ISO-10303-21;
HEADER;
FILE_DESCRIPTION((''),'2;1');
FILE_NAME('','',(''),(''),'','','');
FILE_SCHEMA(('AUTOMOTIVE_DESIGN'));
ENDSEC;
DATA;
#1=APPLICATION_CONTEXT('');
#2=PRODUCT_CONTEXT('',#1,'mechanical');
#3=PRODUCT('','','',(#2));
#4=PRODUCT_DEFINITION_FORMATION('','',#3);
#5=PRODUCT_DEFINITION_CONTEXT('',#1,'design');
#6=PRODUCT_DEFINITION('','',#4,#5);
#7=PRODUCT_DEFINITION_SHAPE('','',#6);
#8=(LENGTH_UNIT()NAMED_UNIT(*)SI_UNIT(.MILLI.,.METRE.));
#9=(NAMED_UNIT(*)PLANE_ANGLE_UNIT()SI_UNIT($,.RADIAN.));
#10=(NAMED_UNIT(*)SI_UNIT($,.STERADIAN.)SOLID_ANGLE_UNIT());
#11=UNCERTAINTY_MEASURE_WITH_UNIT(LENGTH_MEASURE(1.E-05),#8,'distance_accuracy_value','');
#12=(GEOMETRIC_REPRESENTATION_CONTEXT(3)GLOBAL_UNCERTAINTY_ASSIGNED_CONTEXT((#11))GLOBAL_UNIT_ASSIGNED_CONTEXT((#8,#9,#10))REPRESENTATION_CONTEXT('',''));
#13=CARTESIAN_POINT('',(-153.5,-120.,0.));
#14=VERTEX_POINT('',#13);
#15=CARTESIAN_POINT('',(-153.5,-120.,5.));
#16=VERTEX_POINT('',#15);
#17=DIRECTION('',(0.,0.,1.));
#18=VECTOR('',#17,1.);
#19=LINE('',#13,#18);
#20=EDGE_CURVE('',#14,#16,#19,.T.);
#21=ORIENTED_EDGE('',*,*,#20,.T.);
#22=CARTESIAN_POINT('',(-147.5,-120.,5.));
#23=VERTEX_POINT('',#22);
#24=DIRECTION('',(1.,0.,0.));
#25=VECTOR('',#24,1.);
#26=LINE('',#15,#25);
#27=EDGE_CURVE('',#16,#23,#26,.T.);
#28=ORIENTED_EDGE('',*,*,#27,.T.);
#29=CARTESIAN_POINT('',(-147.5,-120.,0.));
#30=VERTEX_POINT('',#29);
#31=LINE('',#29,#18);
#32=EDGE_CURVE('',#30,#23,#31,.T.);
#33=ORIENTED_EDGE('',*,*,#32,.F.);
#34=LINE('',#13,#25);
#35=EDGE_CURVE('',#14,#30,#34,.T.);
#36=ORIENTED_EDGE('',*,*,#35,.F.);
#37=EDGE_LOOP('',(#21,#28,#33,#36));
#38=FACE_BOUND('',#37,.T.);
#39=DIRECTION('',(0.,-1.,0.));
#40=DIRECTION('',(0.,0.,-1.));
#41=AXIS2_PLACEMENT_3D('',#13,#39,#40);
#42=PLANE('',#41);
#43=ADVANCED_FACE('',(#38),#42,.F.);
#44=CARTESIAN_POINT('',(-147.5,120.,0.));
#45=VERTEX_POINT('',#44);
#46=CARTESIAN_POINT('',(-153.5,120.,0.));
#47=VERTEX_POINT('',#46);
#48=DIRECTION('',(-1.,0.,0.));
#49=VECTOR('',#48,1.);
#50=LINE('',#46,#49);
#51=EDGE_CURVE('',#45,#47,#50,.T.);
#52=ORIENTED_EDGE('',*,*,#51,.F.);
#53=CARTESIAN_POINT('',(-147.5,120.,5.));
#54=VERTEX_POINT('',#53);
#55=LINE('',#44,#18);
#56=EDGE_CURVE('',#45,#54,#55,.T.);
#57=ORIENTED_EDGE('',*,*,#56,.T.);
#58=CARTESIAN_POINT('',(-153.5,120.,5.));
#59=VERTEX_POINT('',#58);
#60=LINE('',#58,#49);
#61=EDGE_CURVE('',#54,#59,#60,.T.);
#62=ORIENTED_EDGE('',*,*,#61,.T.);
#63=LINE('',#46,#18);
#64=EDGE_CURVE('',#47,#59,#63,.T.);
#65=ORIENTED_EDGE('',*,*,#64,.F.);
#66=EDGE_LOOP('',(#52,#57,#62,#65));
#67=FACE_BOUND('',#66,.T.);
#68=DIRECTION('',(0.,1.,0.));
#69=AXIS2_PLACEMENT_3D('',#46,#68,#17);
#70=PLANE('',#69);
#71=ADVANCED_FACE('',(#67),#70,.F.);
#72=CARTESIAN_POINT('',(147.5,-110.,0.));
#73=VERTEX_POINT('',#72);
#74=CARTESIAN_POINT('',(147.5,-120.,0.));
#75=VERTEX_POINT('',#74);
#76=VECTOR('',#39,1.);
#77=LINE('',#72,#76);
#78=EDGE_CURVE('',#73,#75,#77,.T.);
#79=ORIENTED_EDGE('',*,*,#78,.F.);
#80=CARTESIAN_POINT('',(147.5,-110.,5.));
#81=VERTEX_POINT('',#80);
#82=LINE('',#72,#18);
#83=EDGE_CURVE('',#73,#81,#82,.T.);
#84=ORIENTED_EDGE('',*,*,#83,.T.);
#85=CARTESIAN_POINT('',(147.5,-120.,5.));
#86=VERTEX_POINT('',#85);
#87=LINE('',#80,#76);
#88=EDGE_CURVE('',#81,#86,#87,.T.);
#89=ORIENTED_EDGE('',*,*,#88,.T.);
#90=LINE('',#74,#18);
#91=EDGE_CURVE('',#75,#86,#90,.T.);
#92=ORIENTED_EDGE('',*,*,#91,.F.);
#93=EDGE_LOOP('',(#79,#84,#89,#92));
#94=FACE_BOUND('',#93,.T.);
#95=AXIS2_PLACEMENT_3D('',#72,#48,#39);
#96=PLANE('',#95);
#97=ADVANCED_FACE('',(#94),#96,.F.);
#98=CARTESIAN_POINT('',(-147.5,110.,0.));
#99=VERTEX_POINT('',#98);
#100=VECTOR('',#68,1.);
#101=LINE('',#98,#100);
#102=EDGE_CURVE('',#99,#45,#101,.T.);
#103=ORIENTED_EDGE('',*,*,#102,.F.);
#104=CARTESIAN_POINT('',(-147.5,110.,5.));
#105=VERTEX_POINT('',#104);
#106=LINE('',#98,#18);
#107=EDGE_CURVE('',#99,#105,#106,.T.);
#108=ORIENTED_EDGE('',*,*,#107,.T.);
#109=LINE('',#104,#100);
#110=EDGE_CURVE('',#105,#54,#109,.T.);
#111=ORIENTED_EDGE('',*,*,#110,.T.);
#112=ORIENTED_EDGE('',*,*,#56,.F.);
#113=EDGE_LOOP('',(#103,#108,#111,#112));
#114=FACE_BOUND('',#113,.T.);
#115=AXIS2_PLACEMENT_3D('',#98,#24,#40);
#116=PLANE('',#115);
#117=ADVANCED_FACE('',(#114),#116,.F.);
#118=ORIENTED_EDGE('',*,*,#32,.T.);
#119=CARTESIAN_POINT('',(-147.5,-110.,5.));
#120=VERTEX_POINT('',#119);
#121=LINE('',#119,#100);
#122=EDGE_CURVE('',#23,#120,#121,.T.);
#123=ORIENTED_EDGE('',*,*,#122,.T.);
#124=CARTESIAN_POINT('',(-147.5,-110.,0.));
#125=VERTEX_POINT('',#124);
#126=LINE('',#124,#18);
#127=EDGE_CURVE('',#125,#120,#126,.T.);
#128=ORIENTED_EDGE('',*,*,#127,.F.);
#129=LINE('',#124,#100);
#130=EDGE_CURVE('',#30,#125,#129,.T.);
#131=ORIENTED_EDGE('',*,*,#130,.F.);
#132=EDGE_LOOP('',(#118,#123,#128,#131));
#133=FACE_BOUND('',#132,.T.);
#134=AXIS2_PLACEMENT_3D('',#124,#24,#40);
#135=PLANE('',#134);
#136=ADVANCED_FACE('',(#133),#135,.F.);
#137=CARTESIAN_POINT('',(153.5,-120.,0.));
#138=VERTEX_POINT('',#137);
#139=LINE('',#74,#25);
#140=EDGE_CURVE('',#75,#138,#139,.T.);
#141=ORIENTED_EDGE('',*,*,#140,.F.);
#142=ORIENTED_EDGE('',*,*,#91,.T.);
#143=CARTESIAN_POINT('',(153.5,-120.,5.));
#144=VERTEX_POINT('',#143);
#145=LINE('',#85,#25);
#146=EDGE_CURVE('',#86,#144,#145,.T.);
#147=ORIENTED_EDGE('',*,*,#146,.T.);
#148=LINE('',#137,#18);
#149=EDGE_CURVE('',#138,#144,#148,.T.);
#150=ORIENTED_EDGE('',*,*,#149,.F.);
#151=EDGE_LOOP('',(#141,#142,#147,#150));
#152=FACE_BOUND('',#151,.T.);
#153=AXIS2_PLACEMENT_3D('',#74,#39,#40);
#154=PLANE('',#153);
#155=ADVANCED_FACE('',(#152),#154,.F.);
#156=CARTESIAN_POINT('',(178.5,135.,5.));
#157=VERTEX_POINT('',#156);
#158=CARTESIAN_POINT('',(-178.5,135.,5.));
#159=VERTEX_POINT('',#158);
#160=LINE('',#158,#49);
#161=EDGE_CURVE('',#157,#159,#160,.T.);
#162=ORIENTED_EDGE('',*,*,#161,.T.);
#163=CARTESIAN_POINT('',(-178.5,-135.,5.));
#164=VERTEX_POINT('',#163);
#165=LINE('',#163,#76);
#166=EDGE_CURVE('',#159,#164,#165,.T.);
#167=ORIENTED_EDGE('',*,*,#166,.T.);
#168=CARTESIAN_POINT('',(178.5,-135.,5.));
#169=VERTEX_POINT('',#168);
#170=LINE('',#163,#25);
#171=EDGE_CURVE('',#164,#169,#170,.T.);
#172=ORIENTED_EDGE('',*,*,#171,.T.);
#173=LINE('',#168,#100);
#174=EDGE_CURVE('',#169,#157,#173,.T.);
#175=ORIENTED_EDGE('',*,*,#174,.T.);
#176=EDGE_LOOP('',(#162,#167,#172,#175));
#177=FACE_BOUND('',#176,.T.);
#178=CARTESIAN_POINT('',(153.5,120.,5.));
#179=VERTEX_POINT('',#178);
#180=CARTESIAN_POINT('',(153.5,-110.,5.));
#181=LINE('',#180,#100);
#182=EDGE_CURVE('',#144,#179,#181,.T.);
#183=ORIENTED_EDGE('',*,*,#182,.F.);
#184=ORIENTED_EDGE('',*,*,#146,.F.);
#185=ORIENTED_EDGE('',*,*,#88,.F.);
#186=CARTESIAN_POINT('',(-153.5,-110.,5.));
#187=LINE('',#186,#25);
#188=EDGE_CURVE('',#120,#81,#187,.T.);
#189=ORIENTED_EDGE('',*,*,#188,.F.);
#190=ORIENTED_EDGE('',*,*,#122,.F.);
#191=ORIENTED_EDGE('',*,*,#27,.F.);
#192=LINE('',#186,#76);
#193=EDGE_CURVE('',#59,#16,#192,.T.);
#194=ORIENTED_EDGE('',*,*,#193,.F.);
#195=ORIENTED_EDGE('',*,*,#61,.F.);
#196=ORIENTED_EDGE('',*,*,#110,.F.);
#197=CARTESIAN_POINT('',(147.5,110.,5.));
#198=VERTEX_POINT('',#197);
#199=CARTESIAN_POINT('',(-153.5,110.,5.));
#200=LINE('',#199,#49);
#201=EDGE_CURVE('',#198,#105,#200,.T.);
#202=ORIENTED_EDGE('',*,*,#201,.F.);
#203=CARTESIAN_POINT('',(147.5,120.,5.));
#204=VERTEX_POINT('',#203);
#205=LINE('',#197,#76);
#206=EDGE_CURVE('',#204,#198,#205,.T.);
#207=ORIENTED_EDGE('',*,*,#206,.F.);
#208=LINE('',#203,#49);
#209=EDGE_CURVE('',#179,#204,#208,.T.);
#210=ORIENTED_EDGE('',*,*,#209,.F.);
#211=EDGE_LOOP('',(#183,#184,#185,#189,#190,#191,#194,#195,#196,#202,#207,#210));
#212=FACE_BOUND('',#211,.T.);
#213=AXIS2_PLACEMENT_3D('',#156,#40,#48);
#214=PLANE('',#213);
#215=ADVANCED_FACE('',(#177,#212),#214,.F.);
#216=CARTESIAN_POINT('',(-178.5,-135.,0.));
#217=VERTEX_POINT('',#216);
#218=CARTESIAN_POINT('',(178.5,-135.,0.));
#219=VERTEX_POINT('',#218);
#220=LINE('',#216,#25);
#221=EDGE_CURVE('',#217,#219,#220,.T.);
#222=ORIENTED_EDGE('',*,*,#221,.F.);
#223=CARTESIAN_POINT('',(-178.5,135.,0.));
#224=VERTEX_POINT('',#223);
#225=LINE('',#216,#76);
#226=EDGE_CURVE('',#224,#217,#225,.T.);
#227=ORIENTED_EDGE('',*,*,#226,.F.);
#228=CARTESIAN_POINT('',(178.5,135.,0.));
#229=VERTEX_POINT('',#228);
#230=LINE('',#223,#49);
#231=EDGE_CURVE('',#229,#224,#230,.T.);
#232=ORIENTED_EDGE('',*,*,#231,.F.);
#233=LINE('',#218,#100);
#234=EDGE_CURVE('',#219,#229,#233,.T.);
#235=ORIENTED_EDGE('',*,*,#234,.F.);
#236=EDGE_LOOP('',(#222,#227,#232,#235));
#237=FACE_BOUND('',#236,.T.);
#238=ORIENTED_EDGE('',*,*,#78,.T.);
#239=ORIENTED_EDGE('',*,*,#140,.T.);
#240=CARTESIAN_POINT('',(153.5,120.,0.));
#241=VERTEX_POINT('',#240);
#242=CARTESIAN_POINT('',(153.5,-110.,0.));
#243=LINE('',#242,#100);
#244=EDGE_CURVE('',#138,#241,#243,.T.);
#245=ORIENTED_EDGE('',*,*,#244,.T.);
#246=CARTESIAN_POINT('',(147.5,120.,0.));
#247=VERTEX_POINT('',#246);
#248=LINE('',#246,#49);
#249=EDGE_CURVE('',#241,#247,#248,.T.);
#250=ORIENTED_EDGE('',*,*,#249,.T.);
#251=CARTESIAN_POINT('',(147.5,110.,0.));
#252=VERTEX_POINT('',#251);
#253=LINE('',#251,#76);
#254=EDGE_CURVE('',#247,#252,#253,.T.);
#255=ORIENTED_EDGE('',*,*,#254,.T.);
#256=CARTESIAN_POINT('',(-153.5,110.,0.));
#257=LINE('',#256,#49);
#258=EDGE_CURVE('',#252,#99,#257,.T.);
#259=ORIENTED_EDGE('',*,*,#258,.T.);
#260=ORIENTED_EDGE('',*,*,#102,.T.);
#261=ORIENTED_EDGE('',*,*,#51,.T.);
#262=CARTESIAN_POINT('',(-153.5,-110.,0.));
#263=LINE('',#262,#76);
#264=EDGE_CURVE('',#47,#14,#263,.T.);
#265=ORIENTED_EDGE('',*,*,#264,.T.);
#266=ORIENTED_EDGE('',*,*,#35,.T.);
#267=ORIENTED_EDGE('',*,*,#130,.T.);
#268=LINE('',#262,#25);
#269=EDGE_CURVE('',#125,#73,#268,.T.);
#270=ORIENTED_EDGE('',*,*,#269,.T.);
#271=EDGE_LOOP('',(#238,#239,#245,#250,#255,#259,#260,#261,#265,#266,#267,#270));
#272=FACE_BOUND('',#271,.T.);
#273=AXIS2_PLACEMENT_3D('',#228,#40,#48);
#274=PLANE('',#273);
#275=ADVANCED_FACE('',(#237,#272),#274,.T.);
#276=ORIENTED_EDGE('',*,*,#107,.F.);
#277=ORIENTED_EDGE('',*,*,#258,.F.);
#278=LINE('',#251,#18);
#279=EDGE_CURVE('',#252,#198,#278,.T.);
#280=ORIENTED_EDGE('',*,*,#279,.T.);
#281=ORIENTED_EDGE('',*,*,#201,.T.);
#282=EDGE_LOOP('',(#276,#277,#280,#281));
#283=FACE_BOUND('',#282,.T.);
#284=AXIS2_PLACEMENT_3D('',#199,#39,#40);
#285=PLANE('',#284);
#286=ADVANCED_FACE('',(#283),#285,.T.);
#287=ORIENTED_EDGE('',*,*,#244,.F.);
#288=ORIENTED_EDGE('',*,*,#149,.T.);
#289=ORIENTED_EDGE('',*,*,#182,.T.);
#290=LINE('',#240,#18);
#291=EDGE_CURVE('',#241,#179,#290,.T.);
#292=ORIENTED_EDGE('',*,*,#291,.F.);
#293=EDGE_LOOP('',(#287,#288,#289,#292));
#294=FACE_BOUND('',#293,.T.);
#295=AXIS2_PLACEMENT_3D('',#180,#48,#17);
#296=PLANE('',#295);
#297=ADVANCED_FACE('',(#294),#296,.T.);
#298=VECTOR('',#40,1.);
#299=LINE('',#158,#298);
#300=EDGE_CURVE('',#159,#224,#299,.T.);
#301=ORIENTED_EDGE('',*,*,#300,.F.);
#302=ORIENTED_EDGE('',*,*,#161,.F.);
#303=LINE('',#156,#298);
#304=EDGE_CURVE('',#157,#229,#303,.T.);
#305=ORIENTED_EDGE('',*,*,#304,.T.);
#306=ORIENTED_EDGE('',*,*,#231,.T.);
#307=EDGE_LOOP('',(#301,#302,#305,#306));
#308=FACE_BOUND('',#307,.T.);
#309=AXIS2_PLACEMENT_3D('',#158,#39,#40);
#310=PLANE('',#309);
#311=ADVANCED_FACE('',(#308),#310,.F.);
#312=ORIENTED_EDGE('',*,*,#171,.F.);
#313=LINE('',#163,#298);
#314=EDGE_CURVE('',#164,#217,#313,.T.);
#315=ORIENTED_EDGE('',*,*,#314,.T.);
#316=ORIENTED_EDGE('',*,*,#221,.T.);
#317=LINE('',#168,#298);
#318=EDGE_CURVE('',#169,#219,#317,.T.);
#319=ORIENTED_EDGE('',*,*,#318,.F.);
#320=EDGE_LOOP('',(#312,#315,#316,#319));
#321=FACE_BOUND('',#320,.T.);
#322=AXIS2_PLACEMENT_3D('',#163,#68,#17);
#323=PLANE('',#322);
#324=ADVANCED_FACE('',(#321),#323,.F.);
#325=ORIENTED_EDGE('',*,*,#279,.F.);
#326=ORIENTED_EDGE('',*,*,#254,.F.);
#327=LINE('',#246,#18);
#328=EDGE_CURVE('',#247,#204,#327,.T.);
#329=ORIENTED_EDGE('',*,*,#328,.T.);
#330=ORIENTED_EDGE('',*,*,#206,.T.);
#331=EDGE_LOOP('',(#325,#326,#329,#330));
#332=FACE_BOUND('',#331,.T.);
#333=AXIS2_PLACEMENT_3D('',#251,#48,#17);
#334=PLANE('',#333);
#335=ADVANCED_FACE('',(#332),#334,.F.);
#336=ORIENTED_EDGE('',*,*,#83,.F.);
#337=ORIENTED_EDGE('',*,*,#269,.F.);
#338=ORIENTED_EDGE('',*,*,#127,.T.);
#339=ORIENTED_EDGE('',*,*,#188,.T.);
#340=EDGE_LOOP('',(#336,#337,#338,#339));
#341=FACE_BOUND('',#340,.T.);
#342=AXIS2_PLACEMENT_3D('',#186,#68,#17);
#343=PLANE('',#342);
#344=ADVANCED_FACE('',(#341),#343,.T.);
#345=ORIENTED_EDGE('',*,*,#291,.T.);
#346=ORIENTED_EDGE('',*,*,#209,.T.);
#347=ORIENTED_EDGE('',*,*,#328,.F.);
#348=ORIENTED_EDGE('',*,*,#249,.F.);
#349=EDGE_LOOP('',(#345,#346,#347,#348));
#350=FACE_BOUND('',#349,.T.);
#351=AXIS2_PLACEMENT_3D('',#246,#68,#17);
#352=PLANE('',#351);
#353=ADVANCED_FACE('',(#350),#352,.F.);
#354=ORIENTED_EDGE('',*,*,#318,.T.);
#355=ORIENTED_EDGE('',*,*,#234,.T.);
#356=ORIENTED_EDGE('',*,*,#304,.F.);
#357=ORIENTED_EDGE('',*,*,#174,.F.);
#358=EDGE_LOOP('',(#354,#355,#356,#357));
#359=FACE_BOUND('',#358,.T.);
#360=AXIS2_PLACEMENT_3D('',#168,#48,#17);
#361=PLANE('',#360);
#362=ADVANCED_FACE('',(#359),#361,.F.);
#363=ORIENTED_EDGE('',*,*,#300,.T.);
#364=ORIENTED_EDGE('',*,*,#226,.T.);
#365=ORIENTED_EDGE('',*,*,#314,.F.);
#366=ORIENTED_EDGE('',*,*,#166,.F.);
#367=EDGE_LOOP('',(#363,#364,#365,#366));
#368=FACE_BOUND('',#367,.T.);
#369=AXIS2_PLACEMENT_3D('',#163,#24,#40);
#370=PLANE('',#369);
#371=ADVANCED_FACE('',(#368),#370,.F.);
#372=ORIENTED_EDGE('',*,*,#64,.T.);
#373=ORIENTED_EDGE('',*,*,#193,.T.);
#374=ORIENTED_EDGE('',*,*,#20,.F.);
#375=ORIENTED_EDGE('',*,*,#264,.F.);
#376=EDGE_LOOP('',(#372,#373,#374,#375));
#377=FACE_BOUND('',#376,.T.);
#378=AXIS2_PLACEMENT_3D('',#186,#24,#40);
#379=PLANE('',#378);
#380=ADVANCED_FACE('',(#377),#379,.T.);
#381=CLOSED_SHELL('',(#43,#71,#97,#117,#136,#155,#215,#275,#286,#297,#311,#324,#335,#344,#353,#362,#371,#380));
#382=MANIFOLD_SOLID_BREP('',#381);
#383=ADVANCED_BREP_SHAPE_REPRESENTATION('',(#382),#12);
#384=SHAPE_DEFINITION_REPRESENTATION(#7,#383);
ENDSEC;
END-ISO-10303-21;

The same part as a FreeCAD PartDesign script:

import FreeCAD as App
import Part
import Sketcher

V = App.Vector
Q = App.Units.Quantity

doc = App.newDocument("Part")
params = doc.addObject("Spreadsheet::Sheet", "Params")
for row, (alias, value) in enumerate([
    ("sketch1_width", "357 mm"),
    ("sketch1_width2", "307 mm"),
    ("sketch1_height", "270 mm"),
    ("sketch1_height2", "220 mm"),
    ("pad1_length", "5 mm"),
    ("sketch2_width", "6 mm"),
    ("sketch2_height", "10 mm"),
], start=1):
    params.set(f"A{row}", alias)
    params.set(f"B{row}", "=" + value)
    params.setAlias(f"B{row}", alias)

body = doc.addObject("PartDesign::Body", "Body")

sketch1 = body.newObject("Sketcher::SketchObject", "Sketch")
sketch1.AttachmentSupport = (doc.getObject("XY_Plane"), [""])
sketch1.MapMode = "FlatFace"
sketch1.addGeometry([
    Part.LineSegment(V(-178, 135, 0), V(-178, -135, 0)),
    Part.LineSegment(V(-178, -135, 0), V(178, -135, 0)),
    Part.LineSegment(V(178, -135, 0), V(178, 135, 0)),
    Part.LineSegment(V(178, 135, 0), V(-178, 135, 0)),
    Part.LineSegment(V(154, -110, 0), V(-154, -110, 0)),
    Part.LineSegment(V(-154, -110, 0), V(-154, 110, 0)),
    Part.LineSegment(V(-154, 110, 0), V(154, 110, 0)),
    Part.LineSegment(V(154, 110, 0), V(154, -110, 0)),
], False)
sketch1.addConstraint([
    Sketcher.Constraint("Coincident", 0, 2, 1, 1),
    Sketcher.Constraint("Coincident", 1, 2, 2, 1),
    Sketcher.Constraint("Coincident", 2, 2, 3, 1),
    Sketcher.Constraint("Coincident", 3, 2, 0, 1),
    Sketcher.Constraint("Coincident", 4, 2, 5, 1),
    Sketcher.Constraint("Coincident", 5, 2, 6, 1),
    Sketcher.Constraint("Coincident", 6, 2, 7, 1),
    Sketcher.Constraint("Coincident", 7, 2, 4, 1),
    Sketcher.Constraint("Vertical", 0),
    Sketcher.Constraint("Horizontal", 1),
    Sketcher.Constraint("Vertical", 2),
    Sketcher.Constraint("Horizontal", 3),
    Sketcher.Constraint("Horizontal", 4),
    Sketcher.Constraint("Vertical", 5),
    Sketcher.Constraint("Horizontal", 6),
    Sketcher.Constraint("Vertical", 7),
    Sketcher.Constraint("Symmetric", 0, 2, 2, 2, -1, 1),
    Sketcher.Constraint("Symmetric", 4, 2, 6, 2, -1, 1),
    Sketcher.Constraint("DistanceX", 1, 1, 1, 2, Q("357 mm")),
    Sketcher.Constraint("DistanceX", 4, 2, 4, 1, Q("307 mm")),
    Sketcher.Constraint("DistanceY", 0, 2, 0, 1, Q("270 mm")),
    Sketcher.Constraint("DistanceY", 5, 1, 5, 2, Q("220 mm")),
])
sketch1.setExpression("Constraints[18]", "Params.sketch1_width")
sketch1.setExpression("Constraints[19]", "Params.sketch1_width2")
sketch1.setExpression("Constraints[20]", "Params.sketch1_height")
sketch1.setExpression("Constraints[21]", "Params.sketch1_height2")
pad1 = body.newObject("PartDesign::Pad", "Pad")
pad1.Profile = sketch1
pad1.setExpression("Length", "Params.pad1_length")

sketch2 = body.newObject("Sketcher::SketchObject", "Sketch001")
sketch2.AttachmentSupport = (doc.getObject("XY_Plane"), [""])
sketch2.MapMode = "FlatFace"
sketch2.AttachmentOffset = App.Placement(V(0, 0, 5), App.Rotation())
sketch2.addGeometry([
    Part.LineSegment(V(-154, 120, 0), V(-154, 110, 0)),
    Part.LineSegment(V(-154, 110, 0), V(-148, 110, 0)),
    Part.LineSegment(V(-148, 110, 0), V(-148, 120, 0)),
    Part.LineSegment(V(-148, 120, 0), V(-154, 120, 0)),
    Part.LineSegment(V(148, 120, 0), V(148, 110, 0)),
    Part.LineSegment(V(148, 110, 0), V(154, 110, 0)),
    Part.LineSegment(V(154, 110, 0), V(154, 120, 0)),
    Part.LineSegment(V(154, 120, 0), V(148, 120, 0)),
    Part.LineSegment(V(148, -110, 0), V(148, -120, 0)),
    Part.LineSegment(V(148, -120, 0), V(154, -120, 0)),
    Part.LineSegment(V(154, -120, 0), V(154, -110, 0)),
    Part.LineSegment(V(154, -110, 0), V(148, -110, 0)),
    Part.LineSegment(V(-154, -110, 0), V(-154, -120, 0)),
    Part.LineSegment(V(-154, -120, 0), V(-148, -120, 0)),
    Part.LineSegment(V(-148, -120, 0), V(-148, -110, 0)),
    Part.LineSegment(V(-148, -110, 0), V(-154, -110, 0)),
], False)
sketch2.addConstraint([
    Sketcher.Constraint("Coincident", 0, 2, 1, 1),
    Sketcher.Constraint("Coincident", 1, 2, 2, 1),
    Sketcher.Constraint("Coincident", 2, 2, 3, 1),
    Sketcher.Constraint("Coincident", 3, 2, 0, 1),
    Sketcher.Constraint("Coincident", 4, 2, 5, 1),
    Sketcher.Constraint("Coincident", 5, 2, 6, 1),
    Sketcher.Constraint("Coincident", 6, 2, 7, 1),
    Sketcher.Constraint("Coincident", 7, 2, 4, 1),
    Sketcher.Constraint("Coincident", 8, 2, 9, 1),
    Sketcher.Constraint("Coincident", 9, 2, 10, 1),
    Sketcher.Constraint("Coincident", 10, 2, 11, 1),
    Sketcher.Constraint("Coincident", 11, 2, 8, 1),
    Sketcher.Constraint("Coincident", 12, 2, 13, 1),
    Sketcher.Constraint("Coincident", 13, 2, 14, 1),
    Sketcher.Constraint("Coincident", 14, 2, 15, 1),
    Sketcher.Constraint("Coincident", 15, 2, 12, 1),
    Sketcher.Constraint("Vertical", 0),
    Sketcher.Constraint("Horizontal", 1),
    Sketcher.Constraint("Vertical", 2),
    Sketcher.Constraint("Horizontal", 3),
    Sketcher.Constraint("Vertical", 4),
    Sketcher.Constraint("Horizontal", 5),
    Sketcher.Constraint("Vertical", 6),
    Sketcher.Constraint("Horizontal", 7),
    Sketcher.Constraint("Vertical", 8),
    Sketcher.Constraint("Horizontal", 9),
    Sketcher.Constraint("Vertical", 10),
    Sketcher.Constraint("Horizontal", 11),
    Sketcher.Constraint("Vertical", 12),
    Sketcher.Constraint("Horizontal", 13),
    Sketcher.Constraint("Vertical", 14),
    Sketcher.Constraint("Horizontal", 15),
    Sketcher.Constraint("Symmetric", 2, 2, 8, 2, -1, 1),
    Sketcher.Constraint("Symmetric", 0, 2, 10, 2, -1, 1),
    Sketcher.Constraint("Symmetric", 6, 2, 12, 2, -1, 1),
    Sketcher.Constraint("Symmetric", 4, 2, 14, 2, -1, 1),
    Sketcher.Constraint("Symmetric", 1, 2, 4, 2, -2),
    Sketcher.Constraint("Symmetric", 3, 2, 6, 2, -2),
    Sketcher.Constraint("DistanceX", 1, 1, 1, 2, Q("6 mm")),
    Sketcher.Constraint("DistanceY", 0, 2, 0, 1, Q("10 mm")),
    Sketcher.Constraint("DistanceY", -1, 1, 0, 2, Q("110 mm")),
    Sketcher.Constraint("DistanceX", 1, 2, 4, 2, Q("295 mm")),
])
sketch2.setExpression("Constraints[38]", "Params.sketch2_width")
sketch2.setExpression("Constraints[39]", "Params.sketch2_height")
pocket1 = body.newObject("PartDesign::Pocket", "Pocket")
pocket1.Profile = sketch2
pocket1.Type = "ThroughAll"

doc.recompute()
